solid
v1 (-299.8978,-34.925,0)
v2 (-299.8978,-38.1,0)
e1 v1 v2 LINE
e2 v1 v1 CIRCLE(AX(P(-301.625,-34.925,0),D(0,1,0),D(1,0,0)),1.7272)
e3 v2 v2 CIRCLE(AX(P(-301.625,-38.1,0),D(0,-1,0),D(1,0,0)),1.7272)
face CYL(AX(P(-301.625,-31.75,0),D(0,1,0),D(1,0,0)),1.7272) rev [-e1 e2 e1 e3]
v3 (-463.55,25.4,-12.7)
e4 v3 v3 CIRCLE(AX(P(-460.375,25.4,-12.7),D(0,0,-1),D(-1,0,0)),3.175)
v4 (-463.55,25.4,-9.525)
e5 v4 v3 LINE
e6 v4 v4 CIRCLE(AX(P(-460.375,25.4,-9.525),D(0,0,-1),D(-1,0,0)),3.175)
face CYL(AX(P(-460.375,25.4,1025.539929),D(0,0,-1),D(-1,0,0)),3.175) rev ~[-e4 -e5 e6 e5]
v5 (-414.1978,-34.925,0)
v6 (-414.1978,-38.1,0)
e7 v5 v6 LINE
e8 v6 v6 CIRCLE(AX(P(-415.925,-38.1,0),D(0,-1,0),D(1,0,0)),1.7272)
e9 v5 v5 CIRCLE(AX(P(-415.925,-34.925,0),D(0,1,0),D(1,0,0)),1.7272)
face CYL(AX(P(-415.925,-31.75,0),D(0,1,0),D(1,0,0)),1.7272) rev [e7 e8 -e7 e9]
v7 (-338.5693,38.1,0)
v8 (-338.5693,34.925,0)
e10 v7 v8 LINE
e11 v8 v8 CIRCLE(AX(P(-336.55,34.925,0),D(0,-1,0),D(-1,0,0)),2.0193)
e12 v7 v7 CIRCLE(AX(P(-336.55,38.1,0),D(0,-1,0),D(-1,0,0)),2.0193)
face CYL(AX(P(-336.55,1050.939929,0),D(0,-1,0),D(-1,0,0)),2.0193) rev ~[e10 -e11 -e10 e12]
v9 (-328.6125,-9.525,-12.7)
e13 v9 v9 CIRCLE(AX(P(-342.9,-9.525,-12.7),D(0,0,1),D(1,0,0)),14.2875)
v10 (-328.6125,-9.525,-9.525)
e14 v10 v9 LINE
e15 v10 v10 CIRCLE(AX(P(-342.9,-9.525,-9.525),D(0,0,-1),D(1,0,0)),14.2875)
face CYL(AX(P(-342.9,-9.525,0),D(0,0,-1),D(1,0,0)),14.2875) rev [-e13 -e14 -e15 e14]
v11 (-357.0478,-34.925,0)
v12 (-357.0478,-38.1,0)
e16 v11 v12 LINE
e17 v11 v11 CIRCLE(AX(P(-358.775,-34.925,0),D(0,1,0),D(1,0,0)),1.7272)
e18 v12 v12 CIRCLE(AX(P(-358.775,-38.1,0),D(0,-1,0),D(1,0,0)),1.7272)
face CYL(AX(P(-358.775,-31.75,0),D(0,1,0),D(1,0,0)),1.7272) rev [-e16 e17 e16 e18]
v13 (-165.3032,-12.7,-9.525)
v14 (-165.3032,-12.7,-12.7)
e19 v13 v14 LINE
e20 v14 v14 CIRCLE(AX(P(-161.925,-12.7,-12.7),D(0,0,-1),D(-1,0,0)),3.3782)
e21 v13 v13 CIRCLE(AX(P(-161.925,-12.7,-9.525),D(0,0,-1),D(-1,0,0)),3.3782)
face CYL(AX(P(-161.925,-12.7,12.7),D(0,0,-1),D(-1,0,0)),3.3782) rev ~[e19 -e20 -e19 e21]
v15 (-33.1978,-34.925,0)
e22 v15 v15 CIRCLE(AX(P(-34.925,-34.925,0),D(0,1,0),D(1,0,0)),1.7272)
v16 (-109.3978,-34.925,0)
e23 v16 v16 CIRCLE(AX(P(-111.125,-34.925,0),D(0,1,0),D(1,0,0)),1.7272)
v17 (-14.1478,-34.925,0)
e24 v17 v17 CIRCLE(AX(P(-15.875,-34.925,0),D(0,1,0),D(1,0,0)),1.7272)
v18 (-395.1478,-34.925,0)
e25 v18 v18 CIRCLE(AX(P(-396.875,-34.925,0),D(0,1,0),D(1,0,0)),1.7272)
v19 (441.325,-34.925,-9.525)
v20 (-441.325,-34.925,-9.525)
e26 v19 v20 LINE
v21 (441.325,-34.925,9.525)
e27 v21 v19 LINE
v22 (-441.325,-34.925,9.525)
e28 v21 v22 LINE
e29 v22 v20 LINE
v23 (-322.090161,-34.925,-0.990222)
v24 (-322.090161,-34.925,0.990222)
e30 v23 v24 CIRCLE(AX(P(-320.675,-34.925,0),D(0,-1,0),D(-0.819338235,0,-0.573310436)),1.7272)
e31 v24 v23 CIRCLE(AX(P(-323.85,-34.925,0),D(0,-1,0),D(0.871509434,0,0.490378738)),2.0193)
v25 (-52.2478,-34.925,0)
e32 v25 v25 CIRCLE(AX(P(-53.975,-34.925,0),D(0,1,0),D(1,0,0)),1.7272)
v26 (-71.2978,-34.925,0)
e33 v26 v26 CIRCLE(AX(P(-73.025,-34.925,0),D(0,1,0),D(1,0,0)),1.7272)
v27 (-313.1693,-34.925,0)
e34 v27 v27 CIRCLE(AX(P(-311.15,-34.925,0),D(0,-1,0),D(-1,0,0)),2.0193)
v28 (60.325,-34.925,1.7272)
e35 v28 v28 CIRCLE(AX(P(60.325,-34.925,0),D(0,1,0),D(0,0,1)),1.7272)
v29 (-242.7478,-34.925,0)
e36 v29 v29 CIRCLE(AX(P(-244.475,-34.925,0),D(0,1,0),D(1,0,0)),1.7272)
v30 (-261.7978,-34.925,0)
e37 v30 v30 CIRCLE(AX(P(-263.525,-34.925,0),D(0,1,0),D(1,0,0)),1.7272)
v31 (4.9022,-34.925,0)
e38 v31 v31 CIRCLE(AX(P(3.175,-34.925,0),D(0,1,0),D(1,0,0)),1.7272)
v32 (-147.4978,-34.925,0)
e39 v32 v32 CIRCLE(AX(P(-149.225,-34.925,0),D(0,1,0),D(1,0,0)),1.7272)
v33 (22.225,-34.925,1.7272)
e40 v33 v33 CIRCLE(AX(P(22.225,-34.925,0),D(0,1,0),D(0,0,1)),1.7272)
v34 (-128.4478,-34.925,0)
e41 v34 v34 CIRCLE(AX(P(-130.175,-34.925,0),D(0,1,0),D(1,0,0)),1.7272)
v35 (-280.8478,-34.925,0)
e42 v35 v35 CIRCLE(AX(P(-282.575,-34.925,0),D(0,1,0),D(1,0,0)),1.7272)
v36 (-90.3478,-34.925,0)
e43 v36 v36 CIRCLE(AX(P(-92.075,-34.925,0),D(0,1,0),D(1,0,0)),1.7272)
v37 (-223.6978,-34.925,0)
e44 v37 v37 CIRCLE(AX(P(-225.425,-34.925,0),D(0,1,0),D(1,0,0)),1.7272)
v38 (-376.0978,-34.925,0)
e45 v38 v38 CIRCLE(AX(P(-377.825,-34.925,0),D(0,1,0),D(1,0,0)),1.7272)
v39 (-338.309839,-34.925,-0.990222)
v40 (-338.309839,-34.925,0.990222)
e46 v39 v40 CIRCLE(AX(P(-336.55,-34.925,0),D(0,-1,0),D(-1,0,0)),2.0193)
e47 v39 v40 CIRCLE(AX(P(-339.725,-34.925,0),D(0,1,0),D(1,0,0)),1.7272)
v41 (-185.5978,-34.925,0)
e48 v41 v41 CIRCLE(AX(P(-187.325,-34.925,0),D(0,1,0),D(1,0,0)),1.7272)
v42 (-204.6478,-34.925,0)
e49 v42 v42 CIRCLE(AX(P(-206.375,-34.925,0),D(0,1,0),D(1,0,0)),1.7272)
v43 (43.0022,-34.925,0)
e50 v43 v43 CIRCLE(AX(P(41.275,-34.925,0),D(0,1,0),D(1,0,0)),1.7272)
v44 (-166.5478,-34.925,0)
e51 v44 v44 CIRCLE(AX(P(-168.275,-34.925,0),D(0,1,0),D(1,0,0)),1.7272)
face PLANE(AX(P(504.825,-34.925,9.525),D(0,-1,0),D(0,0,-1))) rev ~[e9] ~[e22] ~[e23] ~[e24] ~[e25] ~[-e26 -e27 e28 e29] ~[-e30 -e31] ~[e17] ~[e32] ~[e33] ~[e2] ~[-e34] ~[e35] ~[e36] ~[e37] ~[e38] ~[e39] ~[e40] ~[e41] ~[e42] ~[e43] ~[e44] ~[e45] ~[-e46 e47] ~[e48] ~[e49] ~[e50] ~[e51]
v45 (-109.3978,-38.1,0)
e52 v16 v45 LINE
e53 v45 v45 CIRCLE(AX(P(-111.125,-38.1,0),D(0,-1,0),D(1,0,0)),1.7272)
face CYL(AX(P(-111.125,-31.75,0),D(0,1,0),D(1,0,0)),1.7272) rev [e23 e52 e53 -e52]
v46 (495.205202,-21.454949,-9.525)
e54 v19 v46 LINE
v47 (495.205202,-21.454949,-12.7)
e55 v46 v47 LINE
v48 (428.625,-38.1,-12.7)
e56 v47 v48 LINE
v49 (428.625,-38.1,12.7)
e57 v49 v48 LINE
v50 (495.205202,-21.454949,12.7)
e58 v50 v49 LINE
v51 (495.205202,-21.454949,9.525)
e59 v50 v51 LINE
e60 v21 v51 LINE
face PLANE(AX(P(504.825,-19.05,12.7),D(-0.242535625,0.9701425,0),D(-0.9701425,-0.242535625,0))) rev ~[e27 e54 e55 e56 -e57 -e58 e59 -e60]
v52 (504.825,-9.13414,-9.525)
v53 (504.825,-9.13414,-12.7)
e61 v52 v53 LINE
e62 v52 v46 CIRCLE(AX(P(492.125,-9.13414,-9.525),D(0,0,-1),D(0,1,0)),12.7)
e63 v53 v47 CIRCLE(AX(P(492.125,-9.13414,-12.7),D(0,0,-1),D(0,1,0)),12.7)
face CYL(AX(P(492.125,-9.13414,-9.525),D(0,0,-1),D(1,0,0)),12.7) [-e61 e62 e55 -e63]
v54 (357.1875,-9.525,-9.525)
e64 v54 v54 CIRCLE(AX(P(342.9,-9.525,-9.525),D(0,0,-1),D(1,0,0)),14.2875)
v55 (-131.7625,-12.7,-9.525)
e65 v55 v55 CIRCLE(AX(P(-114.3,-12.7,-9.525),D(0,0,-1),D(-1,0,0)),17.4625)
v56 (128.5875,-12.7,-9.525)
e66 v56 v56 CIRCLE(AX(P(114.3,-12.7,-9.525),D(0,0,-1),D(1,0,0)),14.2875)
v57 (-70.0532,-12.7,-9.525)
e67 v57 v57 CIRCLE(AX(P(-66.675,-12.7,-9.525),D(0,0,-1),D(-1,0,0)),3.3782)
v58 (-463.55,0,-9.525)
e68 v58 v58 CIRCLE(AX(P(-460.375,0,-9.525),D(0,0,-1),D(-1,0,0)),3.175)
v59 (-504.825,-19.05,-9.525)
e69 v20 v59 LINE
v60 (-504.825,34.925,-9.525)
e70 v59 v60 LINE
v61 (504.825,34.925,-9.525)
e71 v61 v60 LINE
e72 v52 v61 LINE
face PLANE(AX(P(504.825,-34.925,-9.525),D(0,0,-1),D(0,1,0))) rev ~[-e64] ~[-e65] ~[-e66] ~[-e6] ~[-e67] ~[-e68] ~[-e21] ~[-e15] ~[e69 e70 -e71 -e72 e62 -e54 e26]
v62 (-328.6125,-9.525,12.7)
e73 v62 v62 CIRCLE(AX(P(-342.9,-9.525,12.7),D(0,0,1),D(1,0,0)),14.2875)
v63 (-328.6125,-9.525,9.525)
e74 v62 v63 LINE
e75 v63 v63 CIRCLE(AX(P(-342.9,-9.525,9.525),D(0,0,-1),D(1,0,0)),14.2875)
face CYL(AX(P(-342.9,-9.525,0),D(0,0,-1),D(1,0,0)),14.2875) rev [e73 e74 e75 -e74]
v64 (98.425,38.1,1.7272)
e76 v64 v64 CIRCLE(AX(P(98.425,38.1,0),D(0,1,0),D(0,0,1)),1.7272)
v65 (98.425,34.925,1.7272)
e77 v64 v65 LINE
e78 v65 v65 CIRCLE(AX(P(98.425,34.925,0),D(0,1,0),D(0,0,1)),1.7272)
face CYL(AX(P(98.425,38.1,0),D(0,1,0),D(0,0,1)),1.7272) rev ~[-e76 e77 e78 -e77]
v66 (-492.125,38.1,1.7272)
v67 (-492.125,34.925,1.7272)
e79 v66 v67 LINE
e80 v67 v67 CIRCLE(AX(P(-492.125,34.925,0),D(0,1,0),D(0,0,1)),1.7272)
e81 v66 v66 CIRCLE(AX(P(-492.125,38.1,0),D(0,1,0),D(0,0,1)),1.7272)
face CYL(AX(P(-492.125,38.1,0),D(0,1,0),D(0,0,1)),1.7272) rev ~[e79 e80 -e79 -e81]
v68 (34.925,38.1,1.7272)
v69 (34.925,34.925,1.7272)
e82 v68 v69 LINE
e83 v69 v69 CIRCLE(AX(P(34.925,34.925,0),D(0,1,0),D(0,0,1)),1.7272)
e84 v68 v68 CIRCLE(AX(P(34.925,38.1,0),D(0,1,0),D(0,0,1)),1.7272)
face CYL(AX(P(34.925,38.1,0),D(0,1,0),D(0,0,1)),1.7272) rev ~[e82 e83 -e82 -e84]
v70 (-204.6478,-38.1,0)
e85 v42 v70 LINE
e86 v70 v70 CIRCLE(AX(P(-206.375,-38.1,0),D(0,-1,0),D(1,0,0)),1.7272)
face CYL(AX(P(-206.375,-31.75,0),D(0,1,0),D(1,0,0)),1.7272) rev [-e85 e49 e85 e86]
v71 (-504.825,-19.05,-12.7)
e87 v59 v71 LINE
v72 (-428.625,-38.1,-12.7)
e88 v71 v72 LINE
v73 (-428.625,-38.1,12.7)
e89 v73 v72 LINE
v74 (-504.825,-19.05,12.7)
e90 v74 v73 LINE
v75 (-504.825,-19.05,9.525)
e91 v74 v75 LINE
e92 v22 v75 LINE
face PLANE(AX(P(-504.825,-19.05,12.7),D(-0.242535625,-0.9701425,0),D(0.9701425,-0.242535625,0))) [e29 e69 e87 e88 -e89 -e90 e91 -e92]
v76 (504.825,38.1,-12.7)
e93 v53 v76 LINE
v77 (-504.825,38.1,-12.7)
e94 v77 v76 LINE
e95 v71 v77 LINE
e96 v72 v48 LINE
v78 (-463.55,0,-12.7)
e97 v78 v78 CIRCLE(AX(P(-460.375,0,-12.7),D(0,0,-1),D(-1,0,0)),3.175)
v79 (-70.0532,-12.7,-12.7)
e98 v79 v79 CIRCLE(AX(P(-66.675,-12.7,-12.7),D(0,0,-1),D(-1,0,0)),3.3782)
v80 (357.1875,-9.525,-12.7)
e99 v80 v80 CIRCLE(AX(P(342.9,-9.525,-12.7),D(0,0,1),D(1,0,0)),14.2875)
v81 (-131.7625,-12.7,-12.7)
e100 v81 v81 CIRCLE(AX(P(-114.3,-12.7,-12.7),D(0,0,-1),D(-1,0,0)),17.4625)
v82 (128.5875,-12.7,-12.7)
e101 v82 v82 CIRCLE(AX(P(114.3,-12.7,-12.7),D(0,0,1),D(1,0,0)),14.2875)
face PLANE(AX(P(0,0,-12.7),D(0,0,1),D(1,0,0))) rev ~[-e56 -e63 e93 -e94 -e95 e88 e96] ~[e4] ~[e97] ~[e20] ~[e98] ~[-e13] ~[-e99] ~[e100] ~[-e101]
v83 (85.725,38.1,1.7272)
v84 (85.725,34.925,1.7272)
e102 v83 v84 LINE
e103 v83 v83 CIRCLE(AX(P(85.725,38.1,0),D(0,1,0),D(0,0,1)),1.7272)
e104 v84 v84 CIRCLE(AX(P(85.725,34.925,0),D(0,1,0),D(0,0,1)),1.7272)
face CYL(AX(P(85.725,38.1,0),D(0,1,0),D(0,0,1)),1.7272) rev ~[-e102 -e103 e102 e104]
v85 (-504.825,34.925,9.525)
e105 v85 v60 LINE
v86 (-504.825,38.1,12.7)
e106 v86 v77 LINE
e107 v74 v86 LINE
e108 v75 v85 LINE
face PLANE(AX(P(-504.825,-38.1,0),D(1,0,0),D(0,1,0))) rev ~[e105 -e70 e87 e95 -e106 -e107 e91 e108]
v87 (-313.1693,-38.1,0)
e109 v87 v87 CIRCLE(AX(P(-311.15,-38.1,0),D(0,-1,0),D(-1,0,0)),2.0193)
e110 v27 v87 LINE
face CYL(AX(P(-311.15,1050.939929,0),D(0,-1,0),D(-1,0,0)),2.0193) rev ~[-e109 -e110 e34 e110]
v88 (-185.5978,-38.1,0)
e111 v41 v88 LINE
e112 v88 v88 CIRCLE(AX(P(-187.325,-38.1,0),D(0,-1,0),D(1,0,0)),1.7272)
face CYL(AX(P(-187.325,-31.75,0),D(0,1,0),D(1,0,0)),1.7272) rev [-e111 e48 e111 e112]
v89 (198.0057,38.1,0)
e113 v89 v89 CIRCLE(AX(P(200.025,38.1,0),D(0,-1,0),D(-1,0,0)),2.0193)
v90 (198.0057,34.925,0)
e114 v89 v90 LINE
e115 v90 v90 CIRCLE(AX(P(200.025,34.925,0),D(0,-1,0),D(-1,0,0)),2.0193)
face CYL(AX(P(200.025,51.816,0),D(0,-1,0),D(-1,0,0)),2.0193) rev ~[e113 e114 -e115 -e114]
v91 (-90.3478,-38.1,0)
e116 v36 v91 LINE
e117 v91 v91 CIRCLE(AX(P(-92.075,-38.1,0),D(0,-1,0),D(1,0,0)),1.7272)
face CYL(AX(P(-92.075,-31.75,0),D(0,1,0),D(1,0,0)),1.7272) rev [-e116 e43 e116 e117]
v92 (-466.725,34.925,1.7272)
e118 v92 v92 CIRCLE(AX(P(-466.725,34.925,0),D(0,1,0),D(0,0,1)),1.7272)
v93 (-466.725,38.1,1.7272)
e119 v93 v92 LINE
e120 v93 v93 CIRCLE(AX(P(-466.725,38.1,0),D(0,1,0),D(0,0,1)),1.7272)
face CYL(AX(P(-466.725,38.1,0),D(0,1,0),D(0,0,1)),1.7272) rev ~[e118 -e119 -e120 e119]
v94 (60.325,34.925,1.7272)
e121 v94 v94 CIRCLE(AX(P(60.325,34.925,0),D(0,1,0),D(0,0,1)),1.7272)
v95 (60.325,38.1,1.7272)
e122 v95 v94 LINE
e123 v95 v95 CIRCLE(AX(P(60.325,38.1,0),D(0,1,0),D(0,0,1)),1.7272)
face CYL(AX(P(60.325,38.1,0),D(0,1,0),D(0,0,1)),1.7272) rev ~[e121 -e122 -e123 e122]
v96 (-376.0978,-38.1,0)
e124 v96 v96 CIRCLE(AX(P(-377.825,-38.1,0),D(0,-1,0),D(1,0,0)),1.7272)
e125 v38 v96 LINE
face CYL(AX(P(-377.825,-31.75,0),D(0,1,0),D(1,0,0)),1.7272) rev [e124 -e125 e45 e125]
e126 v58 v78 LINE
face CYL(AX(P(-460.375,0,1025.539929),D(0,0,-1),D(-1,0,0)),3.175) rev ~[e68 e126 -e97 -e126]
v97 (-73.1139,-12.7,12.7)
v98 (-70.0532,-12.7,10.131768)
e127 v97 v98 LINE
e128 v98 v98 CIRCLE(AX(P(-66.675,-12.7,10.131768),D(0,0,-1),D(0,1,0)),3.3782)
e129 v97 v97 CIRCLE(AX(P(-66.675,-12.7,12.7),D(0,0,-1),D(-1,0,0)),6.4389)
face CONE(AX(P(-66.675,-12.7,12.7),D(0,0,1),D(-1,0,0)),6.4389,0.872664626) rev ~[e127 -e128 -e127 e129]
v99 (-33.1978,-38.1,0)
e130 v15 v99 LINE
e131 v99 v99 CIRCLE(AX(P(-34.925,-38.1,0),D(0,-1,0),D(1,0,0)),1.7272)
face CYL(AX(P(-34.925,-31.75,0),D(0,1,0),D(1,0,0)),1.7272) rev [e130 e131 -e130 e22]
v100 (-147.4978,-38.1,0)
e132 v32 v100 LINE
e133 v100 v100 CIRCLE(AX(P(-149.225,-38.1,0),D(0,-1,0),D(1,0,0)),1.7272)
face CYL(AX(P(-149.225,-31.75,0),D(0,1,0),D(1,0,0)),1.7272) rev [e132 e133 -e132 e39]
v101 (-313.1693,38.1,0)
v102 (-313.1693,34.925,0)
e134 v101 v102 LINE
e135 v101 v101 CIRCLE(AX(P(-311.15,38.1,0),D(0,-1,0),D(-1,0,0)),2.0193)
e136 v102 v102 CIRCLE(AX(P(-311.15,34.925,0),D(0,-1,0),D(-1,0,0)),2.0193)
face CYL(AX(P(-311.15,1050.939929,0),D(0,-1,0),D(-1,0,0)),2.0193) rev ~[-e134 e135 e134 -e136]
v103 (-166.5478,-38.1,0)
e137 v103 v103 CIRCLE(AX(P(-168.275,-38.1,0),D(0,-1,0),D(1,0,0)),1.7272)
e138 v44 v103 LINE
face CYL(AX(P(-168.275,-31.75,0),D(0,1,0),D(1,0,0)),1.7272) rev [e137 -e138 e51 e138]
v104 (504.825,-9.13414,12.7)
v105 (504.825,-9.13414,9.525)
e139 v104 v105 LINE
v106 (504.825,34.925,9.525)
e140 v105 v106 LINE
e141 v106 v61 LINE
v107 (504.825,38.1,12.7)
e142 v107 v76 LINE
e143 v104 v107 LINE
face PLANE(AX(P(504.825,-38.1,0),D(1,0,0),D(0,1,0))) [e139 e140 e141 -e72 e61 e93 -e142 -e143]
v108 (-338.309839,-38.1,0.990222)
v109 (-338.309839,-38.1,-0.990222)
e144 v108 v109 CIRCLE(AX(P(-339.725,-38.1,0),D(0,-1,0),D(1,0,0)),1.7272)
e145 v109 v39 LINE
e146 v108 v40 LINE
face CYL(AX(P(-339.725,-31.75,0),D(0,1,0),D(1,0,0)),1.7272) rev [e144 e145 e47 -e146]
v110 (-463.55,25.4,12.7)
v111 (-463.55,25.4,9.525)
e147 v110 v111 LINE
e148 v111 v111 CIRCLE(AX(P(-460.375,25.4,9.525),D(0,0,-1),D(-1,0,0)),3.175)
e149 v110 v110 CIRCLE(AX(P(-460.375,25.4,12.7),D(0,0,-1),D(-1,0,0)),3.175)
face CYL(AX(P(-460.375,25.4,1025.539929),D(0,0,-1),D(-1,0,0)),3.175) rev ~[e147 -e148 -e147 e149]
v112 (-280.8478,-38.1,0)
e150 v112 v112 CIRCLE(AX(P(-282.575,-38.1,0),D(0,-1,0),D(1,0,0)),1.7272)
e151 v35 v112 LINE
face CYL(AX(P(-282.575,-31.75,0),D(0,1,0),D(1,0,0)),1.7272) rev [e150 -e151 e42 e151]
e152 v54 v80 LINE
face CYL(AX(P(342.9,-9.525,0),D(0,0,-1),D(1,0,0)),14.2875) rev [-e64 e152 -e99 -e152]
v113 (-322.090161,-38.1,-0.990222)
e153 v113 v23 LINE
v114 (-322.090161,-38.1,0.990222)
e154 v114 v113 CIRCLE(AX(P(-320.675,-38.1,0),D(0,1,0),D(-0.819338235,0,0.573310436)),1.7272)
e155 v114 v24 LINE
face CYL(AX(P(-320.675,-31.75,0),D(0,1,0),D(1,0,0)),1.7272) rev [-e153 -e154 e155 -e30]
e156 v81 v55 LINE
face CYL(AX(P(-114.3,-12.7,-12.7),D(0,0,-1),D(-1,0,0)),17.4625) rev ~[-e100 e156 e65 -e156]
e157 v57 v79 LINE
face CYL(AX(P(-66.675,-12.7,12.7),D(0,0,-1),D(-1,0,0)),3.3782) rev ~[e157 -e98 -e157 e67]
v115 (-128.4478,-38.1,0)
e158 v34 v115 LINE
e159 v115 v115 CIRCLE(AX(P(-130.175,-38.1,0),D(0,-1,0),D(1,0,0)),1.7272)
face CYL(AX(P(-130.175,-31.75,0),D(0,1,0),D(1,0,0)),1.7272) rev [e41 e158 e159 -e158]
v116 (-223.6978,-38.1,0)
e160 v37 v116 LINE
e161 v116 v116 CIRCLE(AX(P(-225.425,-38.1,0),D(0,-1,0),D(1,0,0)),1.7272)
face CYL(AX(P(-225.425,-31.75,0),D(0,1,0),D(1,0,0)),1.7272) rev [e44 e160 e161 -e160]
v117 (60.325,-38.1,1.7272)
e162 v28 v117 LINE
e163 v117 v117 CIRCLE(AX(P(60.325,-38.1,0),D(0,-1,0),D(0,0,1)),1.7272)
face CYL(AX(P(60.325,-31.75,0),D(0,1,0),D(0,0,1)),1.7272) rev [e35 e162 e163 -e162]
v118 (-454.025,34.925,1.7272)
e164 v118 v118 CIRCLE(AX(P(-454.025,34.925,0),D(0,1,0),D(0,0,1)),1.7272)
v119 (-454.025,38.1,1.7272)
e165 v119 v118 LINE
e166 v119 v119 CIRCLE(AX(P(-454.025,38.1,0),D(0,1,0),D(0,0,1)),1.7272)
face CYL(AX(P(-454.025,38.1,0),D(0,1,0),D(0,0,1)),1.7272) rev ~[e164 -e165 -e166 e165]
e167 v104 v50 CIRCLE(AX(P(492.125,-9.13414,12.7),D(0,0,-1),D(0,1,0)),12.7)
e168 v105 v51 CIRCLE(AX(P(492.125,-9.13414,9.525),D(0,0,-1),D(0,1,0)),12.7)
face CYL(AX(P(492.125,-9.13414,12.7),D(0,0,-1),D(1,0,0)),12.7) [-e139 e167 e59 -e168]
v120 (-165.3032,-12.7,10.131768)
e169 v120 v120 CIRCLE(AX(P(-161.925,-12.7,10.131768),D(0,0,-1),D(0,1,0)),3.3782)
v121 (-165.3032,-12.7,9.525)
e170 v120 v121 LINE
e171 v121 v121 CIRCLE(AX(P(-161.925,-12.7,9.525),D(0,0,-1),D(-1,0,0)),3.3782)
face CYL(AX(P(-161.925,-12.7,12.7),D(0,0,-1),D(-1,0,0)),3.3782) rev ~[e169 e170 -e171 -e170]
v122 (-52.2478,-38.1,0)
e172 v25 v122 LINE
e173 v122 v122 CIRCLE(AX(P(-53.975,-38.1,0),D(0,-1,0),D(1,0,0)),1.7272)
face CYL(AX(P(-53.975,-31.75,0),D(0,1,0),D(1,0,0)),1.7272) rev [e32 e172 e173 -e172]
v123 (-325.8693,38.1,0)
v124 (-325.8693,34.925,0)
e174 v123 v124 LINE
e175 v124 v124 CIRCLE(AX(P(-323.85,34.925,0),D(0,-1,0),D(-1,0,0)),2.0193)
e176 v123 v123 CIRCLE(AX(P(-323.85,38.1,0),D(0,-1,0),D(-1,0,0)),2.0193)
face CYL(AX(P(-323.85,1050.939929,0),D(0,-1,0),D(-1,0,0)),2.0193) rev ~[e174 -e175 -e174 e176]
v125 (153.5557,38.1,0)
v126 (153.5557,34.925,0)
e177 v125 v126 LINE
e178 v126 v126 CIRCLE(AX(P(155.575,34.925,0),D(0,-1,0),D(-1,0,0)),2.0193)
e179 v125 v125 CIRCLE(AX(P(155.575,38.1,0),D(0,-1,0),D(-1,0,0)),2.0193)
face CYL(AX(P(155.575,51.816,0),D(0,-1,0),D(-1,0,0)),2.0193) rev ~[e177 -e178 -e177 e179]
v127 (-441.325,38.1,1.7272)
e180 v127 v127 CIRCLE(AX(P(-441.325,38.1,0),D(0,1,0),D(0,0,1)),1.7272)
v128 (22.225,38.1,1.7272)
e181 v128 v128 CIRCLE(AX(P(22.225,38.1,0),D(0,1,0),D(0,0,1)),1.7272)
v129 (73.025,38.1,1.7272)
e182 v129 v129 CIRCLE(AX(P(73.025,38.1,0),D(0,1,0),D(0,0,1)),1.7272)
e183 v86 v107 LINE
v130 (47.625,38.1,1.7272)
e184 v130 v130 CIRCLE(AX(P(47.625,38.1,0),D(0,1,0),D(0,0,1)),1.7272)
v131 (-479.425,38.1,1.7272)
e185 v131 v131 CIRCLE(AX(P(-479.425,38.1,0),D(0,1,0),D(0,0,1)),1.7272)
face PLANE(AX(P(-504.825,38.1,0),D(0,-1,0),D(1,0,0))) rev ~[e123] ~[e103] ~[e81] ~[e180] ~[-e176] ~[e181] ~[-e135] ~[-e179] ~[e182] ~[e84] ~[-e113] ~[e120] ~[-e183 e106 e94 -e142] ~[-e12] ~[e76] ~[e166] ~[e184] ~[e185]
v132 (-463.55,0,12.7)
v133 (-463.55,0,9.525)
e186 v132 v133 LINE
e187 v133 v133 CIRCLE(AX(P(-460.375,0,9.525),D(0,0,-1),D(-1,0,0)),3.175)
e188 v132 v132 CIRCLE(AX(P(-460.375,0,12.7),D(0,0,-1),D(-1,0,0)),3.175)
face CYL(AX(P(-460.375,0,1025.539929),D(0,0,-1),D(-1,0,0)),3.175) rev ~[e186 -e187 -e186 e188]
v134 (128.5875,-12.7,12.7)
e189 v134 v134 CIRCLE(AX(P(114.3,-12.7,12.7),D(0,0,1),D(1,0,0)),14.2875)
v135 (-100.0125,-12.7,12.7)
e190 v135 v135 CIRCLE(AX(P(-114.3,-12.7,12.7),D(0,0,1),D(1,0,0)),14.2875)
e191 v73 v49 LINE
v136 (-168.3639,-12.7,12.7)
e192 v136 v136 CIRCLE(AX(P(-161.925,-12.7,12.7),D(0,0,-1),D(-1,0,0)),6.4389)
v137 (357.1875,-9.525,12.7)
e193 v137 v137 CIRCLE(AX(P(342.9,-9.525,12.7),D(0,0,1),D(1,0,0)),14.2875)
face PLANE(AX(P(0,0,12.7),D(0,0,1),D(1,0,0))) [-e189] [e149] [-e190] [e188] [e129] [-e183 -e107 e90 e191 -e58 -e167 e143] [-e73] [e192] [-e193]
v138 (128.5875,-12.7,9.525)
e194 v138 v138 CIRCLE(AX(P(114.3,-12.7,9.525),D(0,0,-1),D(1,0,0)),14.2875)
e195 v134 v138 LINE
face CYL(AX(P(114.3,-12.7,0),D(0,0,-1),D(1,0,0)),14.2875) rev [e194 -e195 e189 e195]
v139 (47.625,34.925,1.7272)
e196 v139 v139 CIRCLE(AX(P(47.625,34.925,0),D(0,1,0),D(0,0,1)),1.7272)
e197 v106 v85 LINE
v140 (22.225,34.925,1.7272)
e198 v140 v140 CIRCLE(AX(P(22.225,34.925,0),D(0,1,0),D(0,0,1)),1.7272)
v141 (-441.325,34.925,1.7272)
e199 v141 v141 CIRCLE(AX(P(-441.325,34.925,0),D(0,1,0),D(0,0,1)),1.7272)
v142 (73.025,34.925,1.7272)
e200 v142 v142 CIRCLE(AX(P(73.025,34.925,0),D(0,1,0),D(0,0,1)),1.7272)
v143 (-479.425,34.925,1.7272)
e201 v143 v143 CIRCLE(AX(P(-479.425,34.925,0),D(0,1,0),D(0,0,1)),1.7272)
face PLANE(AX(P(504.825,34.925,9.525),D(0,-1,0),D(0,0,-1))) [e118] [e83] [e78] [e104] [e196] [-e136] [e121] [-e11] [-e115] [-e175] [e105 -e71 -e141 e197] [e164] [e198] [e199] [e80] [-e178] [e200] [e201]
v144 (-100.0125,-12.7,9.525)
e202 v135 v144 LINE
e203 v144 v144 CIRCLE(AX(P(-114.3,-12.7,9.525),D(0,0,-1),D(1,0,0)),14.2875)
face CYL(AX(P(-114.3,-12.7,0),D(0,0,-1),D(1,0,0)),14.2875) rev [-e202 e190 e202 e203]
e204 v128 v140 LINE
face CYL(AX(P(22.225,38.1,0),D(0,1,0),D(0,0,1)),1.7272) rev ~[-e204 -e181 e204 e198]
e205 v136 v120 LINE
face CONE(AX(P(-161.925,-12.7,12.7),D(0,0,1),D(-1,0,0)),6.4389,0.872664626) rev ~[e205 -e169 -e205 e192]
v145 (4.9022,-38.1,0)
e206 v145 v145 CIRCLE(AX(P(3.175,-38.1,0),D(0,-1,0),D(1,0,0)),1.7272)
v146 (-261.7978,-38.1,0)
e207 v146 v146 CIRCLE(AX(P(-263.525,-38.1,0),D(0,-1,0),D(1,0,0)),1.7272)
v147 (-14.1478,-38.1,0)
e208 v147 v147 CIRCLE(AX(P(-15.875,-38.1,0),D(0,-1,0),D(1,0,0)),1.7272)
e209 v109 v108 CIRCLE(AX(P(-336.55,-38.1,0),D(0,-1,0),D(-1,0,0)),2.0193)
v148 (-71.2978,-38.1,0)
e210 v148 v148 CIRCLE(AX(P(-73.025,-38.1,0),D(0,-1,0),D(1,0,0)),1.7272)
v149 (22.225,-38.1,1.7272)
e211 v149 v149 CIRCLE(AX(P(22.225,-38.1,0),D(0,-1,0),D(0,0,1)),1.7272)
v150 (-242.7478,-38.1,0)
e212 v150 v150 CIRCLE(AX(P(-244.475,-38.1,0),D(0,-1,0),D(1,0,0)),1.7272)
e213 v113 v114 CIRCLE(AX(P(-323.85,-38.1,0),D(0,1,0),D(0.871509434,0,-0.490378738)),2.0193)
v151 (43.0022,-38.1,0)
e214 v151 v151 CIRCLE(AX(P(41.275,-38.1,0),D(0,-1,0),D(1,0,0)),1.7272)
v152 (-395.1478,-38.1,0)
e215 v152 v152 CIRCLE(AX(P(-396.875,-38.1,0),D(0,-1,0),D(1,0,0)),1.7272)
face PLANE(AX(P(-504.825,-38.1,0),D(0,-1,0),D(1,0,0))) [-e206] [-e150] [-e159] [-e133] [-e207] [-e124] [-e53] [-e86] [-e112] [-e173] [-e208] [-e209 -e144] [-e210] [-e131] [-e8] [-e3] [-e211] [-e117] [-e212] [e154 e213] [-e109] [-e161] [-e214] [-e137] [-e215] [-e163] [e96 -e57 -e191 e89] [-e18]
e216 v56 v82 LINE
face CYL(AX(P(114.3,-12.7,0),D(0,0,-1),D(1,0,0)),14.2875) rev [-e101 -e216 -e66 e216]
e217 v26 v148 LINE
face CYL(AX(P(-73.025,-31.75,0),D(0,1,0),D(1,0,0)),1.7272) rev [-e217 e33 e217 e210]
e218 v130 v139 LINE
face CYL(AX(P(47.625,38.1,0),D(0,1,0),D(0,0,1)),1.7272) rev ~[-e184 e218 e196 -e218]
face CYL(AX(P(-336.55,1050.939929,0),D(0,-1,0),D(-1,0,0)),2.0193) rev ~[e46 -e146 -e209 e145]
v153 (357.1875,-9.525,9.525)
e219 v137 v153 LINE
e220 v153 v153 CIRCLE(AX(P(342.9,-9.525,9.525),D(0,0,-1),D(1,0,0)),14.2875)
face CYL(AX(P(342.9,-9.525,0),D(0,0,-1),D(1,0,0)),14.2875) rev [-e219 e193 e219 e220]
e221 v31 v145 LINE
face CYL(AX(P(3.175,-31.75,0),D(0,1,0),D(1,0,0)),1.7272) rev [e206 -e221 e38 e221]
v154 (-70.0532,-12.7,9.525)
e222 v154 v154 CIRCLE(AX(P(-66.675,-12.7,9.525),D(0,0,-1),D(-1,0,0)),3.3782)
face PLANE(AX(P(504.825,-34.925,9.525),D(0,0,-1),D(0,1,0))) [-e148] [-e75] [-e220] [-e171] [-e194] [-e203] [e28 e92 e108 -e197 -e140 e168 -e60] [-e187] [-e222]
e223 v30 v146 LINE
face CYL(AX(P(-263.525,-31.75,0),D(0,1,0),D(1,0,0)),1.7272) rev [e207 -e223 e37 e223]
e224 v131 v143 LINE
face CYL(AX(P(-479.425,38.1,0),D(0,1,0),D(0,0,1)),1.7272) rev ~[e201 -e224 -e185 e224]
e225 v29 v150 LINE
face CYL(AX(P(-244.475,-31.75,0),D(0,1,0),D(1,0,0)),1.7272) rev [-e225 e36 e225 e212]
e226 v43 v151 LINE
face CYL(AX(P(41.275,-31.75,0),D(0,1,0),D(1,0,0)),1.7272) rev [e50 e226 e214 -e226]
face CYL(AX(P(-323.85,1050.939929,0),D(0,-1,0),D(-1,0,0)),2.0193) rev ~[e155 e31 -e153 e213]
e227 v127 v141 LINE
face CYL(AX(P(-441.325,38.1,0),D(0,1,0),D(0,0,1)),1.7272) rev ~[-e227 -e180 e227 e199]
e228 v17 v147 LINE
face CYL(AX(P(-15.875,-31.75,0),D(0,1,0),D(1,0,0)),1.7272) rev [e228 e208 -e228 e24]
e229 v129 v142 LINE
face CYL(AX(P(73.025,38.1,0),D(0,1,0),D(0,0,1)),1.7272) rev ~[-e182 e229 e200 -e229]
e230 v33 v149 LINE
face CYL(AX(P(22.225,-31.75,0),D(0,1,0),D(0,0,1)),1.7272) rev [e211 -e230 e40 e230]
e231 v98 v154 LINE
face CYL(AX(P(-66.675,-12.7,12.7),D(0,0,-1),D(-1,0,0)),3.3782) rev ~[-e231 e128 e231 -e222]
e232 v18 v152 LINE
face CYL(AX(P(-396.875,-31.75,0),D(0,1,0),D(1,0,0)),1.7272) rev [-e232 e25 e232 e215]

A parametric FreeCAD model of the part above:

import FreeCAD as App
import Part
import Sketcher
Q = App.Units.Quantity


def edges_at(feature, points):
    """Names of the edges that pass closest to the given points."""
    edges = feature.Shape.Edges
    near = lambda p: min(range(len(edges)), key=lambda i: edges[i].distToShape(Part.Vertex(*p))[0])
    return sorted({f"Edge{near(p) + 1}" for p in points})

doc = App.newDocument("Part")
params = doc.addObject("Spreadsheet::Sheet", "Params")
for row, (alias, value) in enumerate([
    ("sketch1_height", "3 in"),
    ("sketch1_diameter", "1.125 in"),
    ("sketch1_width", "39.75 in"),
    ("pad1_length", "1 in"),
    ("sketch2_width", "2.75 in"),
    ("sketch2_height", "0.75 in"),
    ("sketch3_width", "3 in"),
    ("sketch3_height", "0.75 in"),
    ("fillet_radius", "0.5 in"),
    ("sketch4_diameter", "0.136 in"),
    ("pocket3_length", "0.25 in"),
    ("sketch5_diameter", "0.136 in"),
    ("pocket4_length", "0.2 in"),
    ("sketch6_diameter", "0.266 in"),
    ("hole_diameter", "0.266 in"),
    ("hole_csink_diameter", "0.507 in"),
    ("sketch7_diameter", "0.136 in"),
    ("pocket5_length", "0.25 in"),
    ("sketch8_diameter", "1.375 in"),
    ("pocket6_length", "0.15 in"),
    ("sketch9_diameter", "0.25 in"),
    ("hole2_diameter", "0.25 in"),
    ("sketch10_diameter", "0.159 in"),
    ("hole3_diameter", "0.159 in"),
    ("hole3_depth", "0.54 in"),
    ("sketch11_diameter", "0.159 in"),
    ("hole4_diameter", "0.159 in"),
], start=1):
    params.set(f"A{row}", alias)
    params.set(f"B{row}", "=" + value)
    params.setAlias(f"B{row}", alias)

body = doc.addObject("PartDesign::Body", "Body")

# Sketch on XY plane
sketch1 = doc.addObject("Sketcher::SketchObject", "Sketch")
body.addObject(sketch1)
sketch1.AttachmentSupport = (doc.XY_Plane, [""])
sketch1.MapMode = "FlatFace"
sketch1.addGeometry([
    Part.LineSegment(App.Vector(-504.825, 38.1, 0), App.Vector(-504.825, -38.1, 0)),  # 0
    Part.LineSegment(App.Vector(-504.825, -38.1, 0), App.Vector(504.825, -38.1, 0)),  # 1
    Part.LineSegment(App.Vector(504.825, -38.1, 0), App.Vector(504.825, 38.1, 0)),  # 2
    Part.LineSegment(App.Vector(504.825, 38.1, 0), App.Vector(-504.825, 38.1, 0)),  # 3
    Part.Circle(App.Vector(-114.3, -12.7, 0), App.Vector(0, 0, 1), 14.2875),  # 4
    Part.Circle(App.Vector(114.3, -12.7, 0), App.Vector(0, 0, 1), 14.2875),  # 5
    Part.Circle(App.Vector(-342.9, -9.525, 0), App.Vector(0, 0, 1), 14.2875),  # 6
    Part.Circle(App.Vector(342.9, -9.525, 0), App.Vector(0, 0, 1), 14.2875),  # 7
], False)
sketch1.addConstraint([
    Sketcher.Constraint("Coincident", 0, 2, 1, 1),
    Sketcher.Constraint("Coincident", 1, 2, 2, 1),
    Sketcher.Constraint("Coincident", 2, 2, 3, 1),
    Sketcher.Constraint("Coincident", 3, 2, 0, 1),
    Sketcher.Constraint("Vertical", 0),
    Sketcher.Constraint("Horizontal", 1),
    Sketcher.Constraint("Vertical", 2),
    Sketcher.Constraint("Horizontal", 3),
    Sketcher.Constraint("Equal", 4, 5),
    Sketcher.Constraint("Equal", 5, 6),
    Sketcher.Constraint("Equal", 6, 7),
    Sketcher.Constraint("Symmetric", 0, 2, 2, 2, -1, 1),
    Sketcher.Constraint("Symmetric", 4, 3, 5, 3, -2),
    Sketcher.Constraint("Symmetric", 6, 3, 7, 3, -2),
    Sketcher.Constraint("DistanceY", 0, 2, 0, 1, Q("3 in")),
    Sketcher.Constraint("Diameter", 4, Q("1.125 in")),
    Sketcher.Constraint("DistanceX", 4, 3, 5, 3, Q("9 in")),
    Sketcher.Constraint("DistanceX", 6, 3, 4, 3, Q("9 in")),
    Sketcher.Constraint("DistanceY", 0, 2, 4, 3, Q("1 in")),
    Sketcher.Constraint("DistanceX", 1, 1, 1, 2, Q("39.75 in")),
    Sketcher.Constraint("DistanceY", 6, 3, -1, 1, Q("0.375 in")),
])
sketch1.setExpression("Constraints[14]", "Params.sketch1_height")
sketch1.setExpression("Constraints[15]", "Params.sketch1_diameter")
sketch1.setExpression("Constraints[19]", "Params.sketch1_width")
pad1 = doc.addObject("PartDesign::Pad", "Pad")
body.addObject(pad1)
pad1.Profile = sketch1
pad1.setExpression("Length", "Params.pad1_length")
pad1.Midplane = True

# Sketch on YZ plane
sketch2 = doc.addObject("Sketcher::SketchObject", "Sketch001")
body.addObject(sketch2)
sketch2.AttachmentSupport = (doc.YZ_Plane, [""])
sketch2.MapMode = "FlatFace"
sketch2.AttachmentOffset = App.Placement(App.Vector(0, 0, 19.875 * 25.4), App.Rotation())
sketch2.addGeometry([
    Part.LineSegment(App.Vector(34.925, 9.525, 0), App.Vector(-34.925, 9.525, 0)),
    Part.LineSegment(App.Vector(-34.925, 9.525, 0), App.Vector(-34.925, -9.525, 0)),
    Part.LineSegment(App.Vector(-34.925, -9.525, 0), App.Vector(34.925, -9.525, 0)),
    Part.LineSegment(App.Vector(34.925, -9.525, 0), App.Vector(34.925, 9.525, 0)),
], False)
sketch2.addConstraint([
    Sketcher.Constraint("Coincident", 0, 2, 1, 1),
    Sketcher.Constraint("Coincident", 1, 2, 2, 1),
    Sketcher.Constraint("Coincident", 2, 2, 3, 1),
    Sketcher.Constraint("Coincident", 3, 2, 0, 1),
    Sketcher.Constraint("Horizontal", 0),
    Sketcher.Constraint("Vertical", 1),
    Sketcher.Constraint("Horizontal", 2),
    Sketcher.Constraint("Vertical", 3),
    Sketcher.Constraint("Symmetric", 0, 2, 2, 2, -1, 1),
    Sketcher.Constraint("DistanceX", 0, 2, 0, 1, Q("2.75 in")),
    Sketcher.Constraint("DistanceY", 1, 2, 1, 1, Q("0.75 in")),
])
sketch2.setExpression("Constraints[9]", "Params.sketch2_width")
sketch2.setExpression("Constraints[10]", "Params.sketch2_height")
pocket1 = doc.addObject("PartDesign::Pocket", "Pocket")
body.addObject(pocket1)
pocket1.Profile = sketch2
pocket1.Type = "ThroughAll"

# Sketch on XY plane
sketch3 = doc.addObject("Sketcher::SketchObject", "Sketch002")
body.addObject(sketch3)
sketch3.AttachmentSupport = (doc.XY_Plane, [""])
sketch3.MapMode = "FlatFace"
sketch3.AttachmentOffset = App.Placement(App.Vector(0, 0, 0.5 * 25.4), App.Rotation())
sketch3.addGeometry([
    Part.LineSegment(App.Vector(-504.825, -19.05, 0), App.Vector(-504.825, -38.1, 0)),  # 0
    Part.LineSegment(App.Vector(-504.825, -38.1, 0), App.Vector(-428.625, -38.1, 0)),  # 1
    Part.LineSegment(App.Vector(-428.625, -38.1, 0), App.Vector(-504.825, -19.05, 0)),  # 2
    Part.LineSegment(App.Vector(428.625, -38.1, 0), App.Vector(504.825, -38.1, 0)),  # 3
    Part.LineSegment(App.Vector(504.825, -38.1, 0), App.Vector(504.825, -19.05, 0)),  # 4
    Part.LineSegment(App.Vector(504.825, -19.05, 0), App.Vector(428.625, -38.1, 0)),  # 5
], False)
sketch3.addConstraint([
    Sketcher.Constraint("Coincident", 0, 2, 1, 1),
    Sketcher.Constraint("Coincident", 1, 2, 2, 1),
    Sketcher.Constraint("Coincident", 2, 2, 0, 1),
    Sketcher.Constraint("Coincident", 3, 2, 4, 1),
    Sketcher.Constraint("Coincident", 4, 2, 5, 1),
    Sketcher.Constraint("Coincident", 5, 2, 3, 1),
    Sketcher.Constraint("Vertical", 0),
    Sketcher.Constraint("Horizontal", 1),
    Sketcher.Constraint("Horizontal", 3),
    Sketcher.Constraint("Vertical", 4),
    Sketcher.Constraint("Symmetric", 0, 2, 3, 2, -2),
    Sketcher.Constraint("Horizontal", 2, 2, 4, 2),
    Sketcher.Constraint("Equal", 1, 3),
    Sketcher.Constraint("DistanceX", 1, 1, 1, 2, Q("3 in")),
    Sketcher.Constraint("DistanceY", 0, 2, 0, 1, Q("0.75 in")),
    Sketcher.Constraint("DistanceY", 0, 2, -1, 1, Q("1.5 in")),
    Sketcher.Constraint("DistanceX", 1, 2, 3, 2, Q("36.75 in")),
])
sketch3.setExpression("Constraints[13]", "Params.sketch3_width")
sketch3.setExpression("Constraints[14]", "Params.sketch3_height")
pocket2 = doc.addObject("PartDesign::Pocket", "Pocket001")
body.addObject(pocket2)
pocket2.Profile = sketch3
pocket2.Type = "ThroughAll"
doc.recompute()

fillet = doc.addObject("PartDesign::Fillet", "Fillet")
body.addObject(fillet)
fillet.Base = (pocket2, edges_at(pocket2, [(504.825, -19.05, 11.113), (504.825, -19.05, -11.113)]))
fillet.setExpression("Radius", "Params.fillet_radius")

# Sketch on XZ plane
sketch4 = doc.addObject("Sketcher::SketchObject", "Sketch003")
body.addObject(sketch4)
sketch4.AttachmentSupport = (doc.XZ_Plane, [""])
sketch4.MapMode = "FlatFace"
sketch4.AttachmentOffset = App.Placement(App.Vector(0, 0, -1.5 * 25.4), App.Rotation())
sketch4.addGeometry([
    Part.Circle(App.Vector(-492.125, 0, 0), App.Vector(0, 0, 1), 1.7272),  # 0
    Part.Circle(App.Vector(-441.325, 0, 0), App.Vector(0, 0, 1), 1.7272),  # 1
    Part.Circle(App.Vector(-479.425, 0, 0), App.Vector(0, 0, 1), 1.7272),  # 2
    Part.Circle(App.Vector(-466.725, 0, 0), App.Vector(0, 0, 1), 1.7272),  # 3
    Part.Circle(App.Vector(-454.025, 0, 0), App.Vector(0, 0, 1), 1.7272),  # 4
], False)
sketch4.addConstraint([
    Sketcher.Constraint("Equal", 0, 1),
    Sketcher.Constraint("Equal", 1, 2),
    Sketcher.Constraint("Equal", 2, 3),
    Sketcher.Constraint("Equal", 3, 4),
    Sketcher.Constraint("PointOnObject", 0, 3, -1),
    Sketcher.Constraint("PointOnObject", 1, 3, -1),
    Sketcher.Constraint("PointOnObject", 2, 3, -1),
    Sketcher.Constraint("PointOnObject", 3, 3, -1),
    Sketcher.Constraint("PointOnObject", 4, 3, -1),
    Sketcher.Constraint("Diameter", 0, Q("0.136 in")),
    Sketcher.Constraint("DistanceX", 0, 3, 1, 3, Q("2 in")),
    Sketcher.Constraint("DistanceX", 0, 3, 3, 3, Q("1 in")),
    Sketcher.Constraint("DistanceX", 2, 3, 4, 3, Q("1 in")),
    Sketcher.Constraint("DistanceX", 0, 3, 2, 3, Q("0.5 in")),
    Sketcher.Constraint("DistanceX", 0, 3, -1, 1, Q("19.375 in")),
])
sketch4.setExpression("Constraints[9]", "Params.sketch4_diameter")
pocket3 = doc.addObject("PartDesign::Pocket", "Pocket002")
body.addObject(pocket3)
pocket3.Profile = sketch4
pocket3.setExpression("Length", "Params.pocket3_length")
pocket3.Reversed = True

# Sketch on XZ plane
sketch5 = doc.addObject("Sketcher::SketchObject", "Sketch004")
body.addObject(sketch5)
sketch5.AttachmentSupport = (doc.XZ_Plane, [""])
sketch5.MapMode = "FlatFace"
sketch5.AttachmentOffset = App.Placement(App.Vector(0, 0, -1.5 * 25.4), App.Rotation())
sketch5.addGeometry([
    Part.Circle(App.Vector(98.425, 0, 0), App.Vector(0, 0, 1), 1.7272),  # 0
    Part.Circle(App.Vector(85.725, 0, 0), App.Vector(0, 0, 1), 1.7272),  # 1
    Part.Circle(App.Vector(73.025, 0, 0), App.Vector(0, 0, 1), 1.7272),  # 2
    Part.Circle(App.Vector(60.325, 0, 0), App.Vector(0, 0, 1), 1.7272),  # 3
    Part.Circle(App.Vector(47.625, 0, 0), App.Vector(0, 0, 1), 1.7272),  # 4
    Part.Circle(App.Vector(34.925, 0, 0), App.Vector(0, 0, 1), 1.7272),  # 5
    Part.Circle(App.Vector(22.225, 0, 0), App.Vector(0, 0, 1), 1.7272),  # 6
], False)
sketch5.addConstraint([
    Sketcher.Constraint("Equal", 0, 1),
    Sketcher.Constraint("Equal", 1, 2),
    Sketcher.Constraint("Equal", 2, 3),
    Sketcher.Constraint("Equal", 3, 4),
    Sketcher.Constraint("Equal", 4, 5),
    Sketcher.Constraint("Equal", 5, 6),
    Sketcher.Constraint("PointOnObject", 0, 3, -1),
    Sketcher.Constraint("PointOnObject", 1, 3, -1),
    Sketcher.Constraint("PointOnObject", 2, 3, -1),
    Sketcher.Constraint("PointOnObject", 3, 3, -1),
    Sketcher.Constraint("PointOnObject", 4, 3, -1),
    Sketcher.Constraint("PointOnObject", 5, 3, -1),
    Sketcher.Constraint("PointOnObject", 6, 3, -1),
    Sketcher.Constraint("Diameter", 0, Q("0.136 in")),
    Sketcher.Constraint("DistanceX", 2, 3, 0, 3, Q("1 in")),
    Sketcher.Constraint("DistanceX", 3, 3, 1, 3, Q("1 in")),
    Sketcher.Constraint("DistanceX", 4, 3, 2, 3, Q("1 in")),
    Sketcher.Constraint("DistanceX", 5, 3, 3, 3, Q("1 in")),
    Sketcher.Constraint("DistanceX", 6, 3, 4, 3, Q("1 in")),
    Sketcher.Constraint("DistanceX", 1, 3, 0, 3, Q("0.5 in")),
    Sketcher.Constraint("DistanceX", -1, 1, 0, 3, Q("3.875 in")),
])
sketch5.setExpression("Constraints[13]", "Params.sketch5_diameter")
pocket4 = doc.addObject("PartDesign::Pocket", "Pocket003")
body.addObject(pocket4)
pocket4.Profile = sketch5
pocket4.setExpression("Length", "Params.pocket4_length")
pocket4.Reversed = True

# Sketch on XY plane
sketch6 = doc.addObject("Sketcher::SketchObject", "Sketch005")
body.addObject(sketch6)
sketch6.AttachmentSupport = (doc.XY_Plane, [""])
sketch6.MapMode = "FlatFace"
sketch6.AttachmentOffset = App.Placement(App.Vector(0, 0, 0.5 * 25.4), App.Rotation())
sketch6.addGeometry([
    Part.Circle(App.Vector(-66.675, -12.7, 0), App.Vector(0, 0, 1), 3.3782),
    Part.Circle(App.Vector(-161.925, -12.7, 0), App.Vector(0, 0, 1), 3.3782),
], False)
sketch6.addConstraint([
    Sketcher.Constraint("Equal", 0, 1),
    Sketcher.Constraint("Horizontal", 0, 3, 1, 3),
    Sketcher.Constraint("Diameter", 0, Q("0.266 in")),
    Sketcher.Constraint("DistanceY", 0, 3, -1, 1, Q("0.5 in")),
    Sketcher.Constraint("DistanceX", 1, 3, 0, 3, Q("3.75 in")),
    Sketcher.Constraint("DistanceX", 0, 3, -1, 1, Q("2.625 in")),
])
sketch6.setExpression("Constraints[2]", "Params.sketch6_diameter")
doc.recompute()
hole = doc.addObject("PartDesign::Hole", "Hole")
body.addObject(hole)
hole.Profile = sketch6
hole.ThreadType = "None"
hole.setExpression("Diameter", "Params.hole_diameter")
hole.DepthType = "ThroughAll"
hole.HoleCutType = "Countersink"
hole.setExpression("HoleCutDiameter", "Params.hole_csink_diameter")
hole.HoleCutCountersinkAngle = 100

# Sketch on XZ plane
sketch7 = doc.addObject("Sketcher::SketchObject", "Sketch006")
body.addObject(sketch7)
sketch7.AttachmentSupport = (doc.XZ_Plane, [""])
sketch7.MapMode = "FlatFace"
sketch7.AttachmentOffset = App.Placement(App.Vector(0, 0, 1.25 * 25.4), App.Rotation())
sketch7.addGeometry([
    Part.Circle(App.Vector(-415.925, 0, 0), App.Vector(0, 0, 1), 1.7272),  # 0
    Part.Circle(App.Vector(-396.875, 0, 0), App.Vector(0, 0, 1), 1.7272),  # 1
    Part.Circle(App.Vector(-377.825, 0, 0), App.Vector(0, 0, 1), 1.7272),  # 2
    Part.Circle(App.Vector(-358.775, 0, 0), App.Vector(0, 0, 1), 1.7272),  # 3
    Part.Circle(App.Vector(-339.725, 0, 0), App.Vector(0, 0, 1), 1.7272),  # 4
    Part.Circle(App.Vector(-320.675, 0, 0), App.Vector(0, 0, 1), 1.7272),  # 5
    Part.Circle(App.Vector(-301.625, 0, 0), App.Vector(0, 0, 1), 1.7272),  # 6
    Part.Circle(App.Vector(-282.575, 0, 0), App.Vector(0, 0, 1), 1.7272),  # 7
    Part.Circle(App.Vector(-263.525, 0, 0), App.Vector(0, 0, 1), 1.7272),  # 8
    Part.Circle(App.Vector(-244.475, 0, 0), App.Vector(0, 0, 1), 1.7272),  # 9
    Part.Circle(App.Vector(-225.425, 0, 0), App.Vector(0, 0, 1), 1.7272),  # 10
    Part.Circle(App.Vector(-206.375, 0, 0), App.Vector(0, 0, 1), 1.7272),  # 11
    Part.Circle(App.Vector(-187.325, 0, 0), App.Vector(0, 0, 1), 1.7272),  # 12
    Part.Circle(App.Vector(-168.275, 0, 0), App.Vector(0, 0, 1), 1.7272),  # 13
    Part.Circle(App.Vector(-149.225, 0, 0), App.Vector(0, 0, 1), 1.7272),  # 14
    Part.Circle(App.Vector(-130.175, 0, 0), App.Vector(0, 0, 1), 1.7272),  # 15
    Part.Circle(App.Vector(-111.125, 0, 0), App.Vector(0, 0, 1), 1.7272),  # 16
    Part.Circle(App.Vector(-92.075, 0, 0), App.Vector(0, 0, 1), 1.7272),  # 17
    Part.Circle(App.Vector(-73.025, 0, 0), App.Vector(0, 0, 1), 1.7272),  # 18
    Part.Circle(App.Vector(-53.975, 0, 0), App.Vector(0, 0, 1), 1.7272),  # 19
    Part.Circle(App.Vector(-34.925, 0, 0), App.Vector(0, 0, 1), 1.7272),  # 20
    Part.Circle(App.Vector(-15.875, 0, 0), App.Vector(0, 0, 1), 1.7272),  # 21
    Part.Circle(App.Vector(3.175, 0, 0), App.Vector(0, 0, 1), 1.7272),  # 22
    Part.Circle(App.Vector(22.225, 0, 0), App.Vector(0, 0, 1), 1.7272),  # 23
    Part.Circle(App.Vector(41.275, 0, 0), App.Vector(0, 0, 1), 1.7272),  # 24
    Part.Circle(App.Vector(60.325, 0, 0), App.Vector(0, 0, 1), 1.7272),  # 25
], False)
sketch7.addConstraint([
    Sketcher.Constraint("Equal", 0, 1),
    Sketcher.Constraint("Equal", 1, 2),
    Sketcher.Constraint("Equal", 2, 3),
    Sketcher.Constraint("Equal", 3, 4),
    Sketcher.Constraint("Equal", 4, 5),
    Sketcher.Constraint("Equal", 5, 6),
    Sketcher.Constraint("Equal", 6, 7),
    Sketcher.Constraint("Equal", 7, 8),
    Sketcher.Constraint("Equal", 8, 9),
    Sketcher.Constraint("Equal", 9, 10),
    Sketcher.Constraint("Equal", 10, 11),
    Sketcher.Constraint("Equal", 11, 12),
    Sketcher.Constraint("Equal", 12, 13),
    Sketcher.Constraint("Equal", 13, 14),
    Sketcher.Constraint("Equal", 14, 15),
    Sketcher.Constraint("Equal", 15, 16),
    Sketcher.Constraint("Equal", 16, 17),
    Sketcher.Constraint("Equal", 17, 18),
    Sketcher.Constraint("Equal", 18, 19),
    Sketcher.Constraint("Equal", 19, 20),
    Sketcher.Constraint("Equal", 20, 21),
    Sketcher.Constraint("Equal", 21, 22),
    Sketcher.Constraint("Equal", 22, 23),
    Sketcher.Constraint("Equal", 23, 24),
    Sketcher.Constraint("Equal", 24, 25),
    Sketcher.Constraint("PointOnObject", 0, 3, -1),
    Sketcher.Constraint("PointOnObject", 1, 3, -1),
    Sketcher.Constraint("PointOnObject", 2, 3, -1),
    Sketcher.Constraint("PointOnObject", 3, 3, -1),
    Sketcher.Constraint("PointOnObject", 4, 3, -1),
    Sketcher.Constraint("PointOnObject", 5, 3, -1),
    Sketcher.Constraint("PointOnObject", 6, 3, -1),
    Sketcher.Constraint("PointOnObject", 7, 3, -1),
    Sketcher.Constraint("PointOnObject", 8, 3, -1),
    Sketcher.Constraint("PointOnObject", 9, 3, -1),
    Sketcher.Constraint("PointOnObject", 10, 3, -1),
    Sketcher.Constraint("PointOnObject", 11, 3, -1),
    Sketcher.Constraint("PointOnObject", 12, 3, -1),
    Sketcher.Constraint("PointOnObject", 13, 3, -1),
    Sketcher.Constraint("PointOnObject", 14, 3, -1),
    Sketcher.Constraint("PointOnObject", 15, 3, -1),
    Sketcher.Constraint("PointOnObject", 16, 3, -1),
    Sketcher.Constraint("PointOnObject", 17, 3, -1),
    Sketcher.Constraint("PointOnObject", 18, 3, -1),
    Sketcher.Constraint("PointOnObject", 19, 3, -1),
    Sketcher.Constraint("PointOnObject", 20, 3, -1),
    Sketcher.Constraint("PointOnObject", 21, 3, -1),
    Sketcher.Constraint("PointOnObject", 22, 3, -1),
    Sketcher.Constraint("PointOnObject", 23, 3, -1),
    Sketcher.Constraint("PointOnObject", 24, 3, -1),
    Sketcher.Constraint("PointOnObject", 25, 3, -1),
    Sketcher.Constraint("Diameter", 0, Q("0.136 in")),
    Sketcher.Constraint("DistanceX", 0, 3, 4, 3, Q("3 in")),
    Sketcher.Constraint("DistanceX", 1, 3, 5, 3, Q("3 in")),
    Sketcher.Constraint("DistanceX", 2, 3, 6, 3, Q("3 in")),
    Sketcher.Constraint("DistanceX", 3, 3, 7, 3, Q("3 in")),
    Sketcher.Constraint("DistanceX", 4, 3, 8, 3, Q("3 in")),
    Sketcher.Constraint("DistanceX", 5, 3, 9, 3, Q("3 in")),
    Sketcher.Constraint("DistanceX", 6, 3, 10, 3, Q("3 in")),
    Sketcher.Constraint("DistanceX", 7, 3, 11, 3, Q("3 in")),
    Sketcher.Constraint("DistanceX", 8, 3, 12, 3, Q("3 in")),
    Sketcher.Constraint("DistanceX", 9, 3, 13, 3, Q("3 in")),
    Sketcher.Constraint("DistanceX", 10, 3, 14, 3, Q("3 in")),
    Sketcher.Constraint("DistanceX", 11, 3, 15, 3, Q("3 in")),
    Sketcher.Constraint("DistanceX", 12, 3, 16, 3, Q("3 in")),
    Sketcher.Constraint("DistanceX", 13, 3, 17, 3, Q("3 in")),
    Sketcher.Constraint("DistanceX", 14, 3, 18, 3, Q("3 in")),
    Sketcher.Constraint("DistanceX", 15, 3, 19, 3, Q("3 in")),
    Sketcher.Constraint("DistanceX", 16, 3, 20, 3, Q("3 in")),
    Sketcher.Constraint("DistanceX", 17, 3, 21, 3, Q("3 in")),
    Sketcher.Constraint("DistanceX", 18, 3, 22, 3, Q("3 in")),
    Sketcher.Constraint("DistanceX", 19, 3, 23, 3, Q("3 in")),
    Sketcher.Constraint("DistanceX", 20, 3, 24, 3, Q("3 in")),
    Sketcher.Constraint("DistanceX", 21, 3, 25, 3, Q("3 in")),
    Sketcher.Constraint("DistanceX", 0, 3, 2, 3, Q("1.5 in")),
    Sketcher.Constraint("DistanceX", 1, 3, 3, 3, Q("1.5 in")),
    Sketcher.Constraint("DistanceX", 0, 3, 1, 3, Q("0.75 in")),
    Sketcher.Constraint("DistanceX", 0, 3, -1, 1, Q("16.375 in")),
])
sketch7.setExpression("Constraints[51]", "Params.sketch7_diameter")
pocket5 = doc.addObject("PartDesign::Pocket", "Pocket004")
body.addObject(pocket5)
pocket5.Profile = sketch7
pocket5.setExpression("Length", "Params.pocket5_length")
pocket5.Reversed = True

# Sketch on XY plane
sketch8 = doc.addObject("Sketcher::SketchObject", "Sketch007")
body.addObject(sketch8)
sketch8.AttachmentSupport = (doc.XY_Plane, [""])
sketch8.MapMode = "FlatFace"
sketch8.AttachmentOffset = App.Placement(App.Vector(0, 0, -0.5 * 25.4), App.Rotation())
sketch8.addGeometry(Part.Circle(App.Vector(-114.3, -12.7, 0), App.Vector(0, 0, 1), 17.4625), False)
sketch8.addConstraint([
    Sketcher.Constraint("Diameter", 0, Q("1.375 in")),
    Sketcher.Constraint("DistanceX", 0, 3, -1, 1, Q("4.5 in")),
    Sketcher.Constraint("DistanceY", 0, 3, -1, 1, Q("0.5 in")),
])
sketch8.setExpression("Constraints[0]", "Params.sketch8_diameter")
pocket6 = doc.addObject("PartDesign::Pocket", "Pocket005")
body.addObject(pocket6)
pocket6.Profile = sketch8
pocket6.setExpression("Length", "Params.pocket6_length")
pocket6.Reversed = True

# Sketch on XY plane
sketch9 = doc.addObject("Sketcher::SketchObject", "Sketch008")
body.addObject(sketch9)
sketch9.AttachmentSupport = (doc.XY_Plane, [""])
sketch9.MapMode = "FlatFace"
sketch9.AttachmentOffset = App.Placement(App.Vector(0, 0, 0.5 * 25.4), App.Rotation())
sketch9.addGeometry([
    Part.Circle(App.Vector(-460.375, 25.4, 0), App.Vector(0, 0, 1), 3.175),
    Part.Circle(App.Vector(-460.375, 0, 0), App.Vector(0, 0, 1), 3.175),
], False)
sketch9.addConstraint([
    Sketcher.Constraint("Equal", 0, 1),
    Sketcher.Constraint("PointOnObject", 1, 3, -1),
    Sketcher.Constraint("Vertical", 0, 3, 1, 3),
    Sketcher.Constraint("Diameter", 0, Q("0.25 in")),
    Sketcher.Constraint("DistanceY", -1, 1, 0, 3, Q("1 in")),
    Sketcher.Constraint("DistanceX", 0, 3, -1, 1, Q("18.125 in")),
])
sketch9.setExpression("Constraints[3]", "Params.sketch9_diameter")
doc.recompute()
hole2 = doc.addObject("PartDesign::Hole", "Hole001")
body.addObject(hole2)
hole2.Profile = sketch9
hole2.ThreadType = "None"
hole2.setExpression("Diameter", "Params.hole2_diameter")
hole2.DepthType = "ThroughAll"

# Sketch on XZ plane
sketch10 = doc.addObject("Sketcher::SketchObject", "Sketch009")
body.addObject(sketch10)
sketch10.AttachmentSupport = (doc.XZ_Plane, [""])
sketch10.MapMode = "FlatFace"
sketch10.AttachmentOffset = App.Placement(App.Vector(0, 0, -1.5 * 25.4), App.Rotation())
sketch10.addGeometry([
    Part.Circle(App.Vector(155.575, 0, 0), App.Vector(0, 0, 1), 2.0193),
    Part.Circle(App.Vector(200.025, 0, 0), App.Vector(0, 0, 1), 2.0193),
], False)
sketch10.addConstraint([
    Sketcher.Constraint("Equal", 0, 1),
    Sketcher.Constraint("PointOnObject", 0, 3, -1),
    Sketcher.Constraint("PointOnObject", 1, 3, -1),
    Sketcher.Constraint("Diameter", 0, Q("0.159 in")),
    Sketcher.Constraint("DistanceX", 0, 3, 1, 3, Q("1.75 in")),
    Sketcher.Constraint("DistanceX", -1, 1, 0, 3, Q("6.125 in")),
])
sketch10.setExpression("Constraints[3]", "Params.sketch10_diameter")
doc.recompute()
hole3 = doc.addObject("PartDesign::Hole", "Hole002")
body.addObject(hole3)
hole3.Profile = sketch10
hole3.ThreadType = "None"
hole3.setExpression("Diameter", "Params.hole3_diameter")
hole3.DepthType = "Dimension"
hole3.setExpression("Depth", "Params.hole3_depth")
hole3.DrillPoint = "Angled"
hole3.DrillPointAngle = 118
hole3.Reversed = True

# Sketch on XZ plane
sketch11 = doc.addObject("Sketcher::SketchObject", "Sketch010")
body.addObject(sketch11)
sketch11.AttachmentSupport = (doc.XZ_Plane, [""])
sketch11.MapMode = "FlatFace"
sketch11.AttachmentOffset = App.Placement(App.Vector(0, 0, -1.5 * 25.4), App.Rotation())
sketch11.addGeometry([
    Part.Circle(App.Vector(-336.55, 0, 0), App.Vector(0, 0, 1), 2.0193),
    Part.Circle(App.Vector(-311.15, 0, 0), App.Vector(0, 0, 1), 2.0193),
    Part.Circle(App.Vector(-323.85, 0, 0), App.Vector(0, 0, 1), 2.0193),
], False)
sketch11.addConstraint([
    Sketcher.Constraint("Equal", 0, 1),
    Sketcher.Constraint("Equal", 1, 2),
    Sketcher.Constraint("PointOnObject", 0, 3, -1),
    Sketcher.Constraint("PointOnObject", 1, 3, -1),
    Sketcher.Constraint("PointOnObject", 2, 3, -1),
    Sketcher.Constraint("Diameter", 0, Q("0.159 in")),
    Sketcher.Constraint("DistanceX", 0, 3, 1, 3, Q("1 in")),
    Sketcher.Constraint("DistanceX", 0, 3, 2, 3, Q("0.5 in")),
    Sketcher.Constraint("DistanceX", 0, 3, -1, 1, Q("13.25 in")),
])
sketch11.setExpression("Constraints[5]", "Params.sketch11_diameter")
doc.recompute()
hole4 = doc.addObject("PartDesign::Hole", "Hole003")
body.addObject(hole4)
hole4.Profile = sketch11
hole4.ThreadType = "None"
hole4.setExpression("Diameter", "Params.hole4_diameter")
hole4.DepthType = "ThroughAll"
hole4.Reversed = True

doc.recompute()
